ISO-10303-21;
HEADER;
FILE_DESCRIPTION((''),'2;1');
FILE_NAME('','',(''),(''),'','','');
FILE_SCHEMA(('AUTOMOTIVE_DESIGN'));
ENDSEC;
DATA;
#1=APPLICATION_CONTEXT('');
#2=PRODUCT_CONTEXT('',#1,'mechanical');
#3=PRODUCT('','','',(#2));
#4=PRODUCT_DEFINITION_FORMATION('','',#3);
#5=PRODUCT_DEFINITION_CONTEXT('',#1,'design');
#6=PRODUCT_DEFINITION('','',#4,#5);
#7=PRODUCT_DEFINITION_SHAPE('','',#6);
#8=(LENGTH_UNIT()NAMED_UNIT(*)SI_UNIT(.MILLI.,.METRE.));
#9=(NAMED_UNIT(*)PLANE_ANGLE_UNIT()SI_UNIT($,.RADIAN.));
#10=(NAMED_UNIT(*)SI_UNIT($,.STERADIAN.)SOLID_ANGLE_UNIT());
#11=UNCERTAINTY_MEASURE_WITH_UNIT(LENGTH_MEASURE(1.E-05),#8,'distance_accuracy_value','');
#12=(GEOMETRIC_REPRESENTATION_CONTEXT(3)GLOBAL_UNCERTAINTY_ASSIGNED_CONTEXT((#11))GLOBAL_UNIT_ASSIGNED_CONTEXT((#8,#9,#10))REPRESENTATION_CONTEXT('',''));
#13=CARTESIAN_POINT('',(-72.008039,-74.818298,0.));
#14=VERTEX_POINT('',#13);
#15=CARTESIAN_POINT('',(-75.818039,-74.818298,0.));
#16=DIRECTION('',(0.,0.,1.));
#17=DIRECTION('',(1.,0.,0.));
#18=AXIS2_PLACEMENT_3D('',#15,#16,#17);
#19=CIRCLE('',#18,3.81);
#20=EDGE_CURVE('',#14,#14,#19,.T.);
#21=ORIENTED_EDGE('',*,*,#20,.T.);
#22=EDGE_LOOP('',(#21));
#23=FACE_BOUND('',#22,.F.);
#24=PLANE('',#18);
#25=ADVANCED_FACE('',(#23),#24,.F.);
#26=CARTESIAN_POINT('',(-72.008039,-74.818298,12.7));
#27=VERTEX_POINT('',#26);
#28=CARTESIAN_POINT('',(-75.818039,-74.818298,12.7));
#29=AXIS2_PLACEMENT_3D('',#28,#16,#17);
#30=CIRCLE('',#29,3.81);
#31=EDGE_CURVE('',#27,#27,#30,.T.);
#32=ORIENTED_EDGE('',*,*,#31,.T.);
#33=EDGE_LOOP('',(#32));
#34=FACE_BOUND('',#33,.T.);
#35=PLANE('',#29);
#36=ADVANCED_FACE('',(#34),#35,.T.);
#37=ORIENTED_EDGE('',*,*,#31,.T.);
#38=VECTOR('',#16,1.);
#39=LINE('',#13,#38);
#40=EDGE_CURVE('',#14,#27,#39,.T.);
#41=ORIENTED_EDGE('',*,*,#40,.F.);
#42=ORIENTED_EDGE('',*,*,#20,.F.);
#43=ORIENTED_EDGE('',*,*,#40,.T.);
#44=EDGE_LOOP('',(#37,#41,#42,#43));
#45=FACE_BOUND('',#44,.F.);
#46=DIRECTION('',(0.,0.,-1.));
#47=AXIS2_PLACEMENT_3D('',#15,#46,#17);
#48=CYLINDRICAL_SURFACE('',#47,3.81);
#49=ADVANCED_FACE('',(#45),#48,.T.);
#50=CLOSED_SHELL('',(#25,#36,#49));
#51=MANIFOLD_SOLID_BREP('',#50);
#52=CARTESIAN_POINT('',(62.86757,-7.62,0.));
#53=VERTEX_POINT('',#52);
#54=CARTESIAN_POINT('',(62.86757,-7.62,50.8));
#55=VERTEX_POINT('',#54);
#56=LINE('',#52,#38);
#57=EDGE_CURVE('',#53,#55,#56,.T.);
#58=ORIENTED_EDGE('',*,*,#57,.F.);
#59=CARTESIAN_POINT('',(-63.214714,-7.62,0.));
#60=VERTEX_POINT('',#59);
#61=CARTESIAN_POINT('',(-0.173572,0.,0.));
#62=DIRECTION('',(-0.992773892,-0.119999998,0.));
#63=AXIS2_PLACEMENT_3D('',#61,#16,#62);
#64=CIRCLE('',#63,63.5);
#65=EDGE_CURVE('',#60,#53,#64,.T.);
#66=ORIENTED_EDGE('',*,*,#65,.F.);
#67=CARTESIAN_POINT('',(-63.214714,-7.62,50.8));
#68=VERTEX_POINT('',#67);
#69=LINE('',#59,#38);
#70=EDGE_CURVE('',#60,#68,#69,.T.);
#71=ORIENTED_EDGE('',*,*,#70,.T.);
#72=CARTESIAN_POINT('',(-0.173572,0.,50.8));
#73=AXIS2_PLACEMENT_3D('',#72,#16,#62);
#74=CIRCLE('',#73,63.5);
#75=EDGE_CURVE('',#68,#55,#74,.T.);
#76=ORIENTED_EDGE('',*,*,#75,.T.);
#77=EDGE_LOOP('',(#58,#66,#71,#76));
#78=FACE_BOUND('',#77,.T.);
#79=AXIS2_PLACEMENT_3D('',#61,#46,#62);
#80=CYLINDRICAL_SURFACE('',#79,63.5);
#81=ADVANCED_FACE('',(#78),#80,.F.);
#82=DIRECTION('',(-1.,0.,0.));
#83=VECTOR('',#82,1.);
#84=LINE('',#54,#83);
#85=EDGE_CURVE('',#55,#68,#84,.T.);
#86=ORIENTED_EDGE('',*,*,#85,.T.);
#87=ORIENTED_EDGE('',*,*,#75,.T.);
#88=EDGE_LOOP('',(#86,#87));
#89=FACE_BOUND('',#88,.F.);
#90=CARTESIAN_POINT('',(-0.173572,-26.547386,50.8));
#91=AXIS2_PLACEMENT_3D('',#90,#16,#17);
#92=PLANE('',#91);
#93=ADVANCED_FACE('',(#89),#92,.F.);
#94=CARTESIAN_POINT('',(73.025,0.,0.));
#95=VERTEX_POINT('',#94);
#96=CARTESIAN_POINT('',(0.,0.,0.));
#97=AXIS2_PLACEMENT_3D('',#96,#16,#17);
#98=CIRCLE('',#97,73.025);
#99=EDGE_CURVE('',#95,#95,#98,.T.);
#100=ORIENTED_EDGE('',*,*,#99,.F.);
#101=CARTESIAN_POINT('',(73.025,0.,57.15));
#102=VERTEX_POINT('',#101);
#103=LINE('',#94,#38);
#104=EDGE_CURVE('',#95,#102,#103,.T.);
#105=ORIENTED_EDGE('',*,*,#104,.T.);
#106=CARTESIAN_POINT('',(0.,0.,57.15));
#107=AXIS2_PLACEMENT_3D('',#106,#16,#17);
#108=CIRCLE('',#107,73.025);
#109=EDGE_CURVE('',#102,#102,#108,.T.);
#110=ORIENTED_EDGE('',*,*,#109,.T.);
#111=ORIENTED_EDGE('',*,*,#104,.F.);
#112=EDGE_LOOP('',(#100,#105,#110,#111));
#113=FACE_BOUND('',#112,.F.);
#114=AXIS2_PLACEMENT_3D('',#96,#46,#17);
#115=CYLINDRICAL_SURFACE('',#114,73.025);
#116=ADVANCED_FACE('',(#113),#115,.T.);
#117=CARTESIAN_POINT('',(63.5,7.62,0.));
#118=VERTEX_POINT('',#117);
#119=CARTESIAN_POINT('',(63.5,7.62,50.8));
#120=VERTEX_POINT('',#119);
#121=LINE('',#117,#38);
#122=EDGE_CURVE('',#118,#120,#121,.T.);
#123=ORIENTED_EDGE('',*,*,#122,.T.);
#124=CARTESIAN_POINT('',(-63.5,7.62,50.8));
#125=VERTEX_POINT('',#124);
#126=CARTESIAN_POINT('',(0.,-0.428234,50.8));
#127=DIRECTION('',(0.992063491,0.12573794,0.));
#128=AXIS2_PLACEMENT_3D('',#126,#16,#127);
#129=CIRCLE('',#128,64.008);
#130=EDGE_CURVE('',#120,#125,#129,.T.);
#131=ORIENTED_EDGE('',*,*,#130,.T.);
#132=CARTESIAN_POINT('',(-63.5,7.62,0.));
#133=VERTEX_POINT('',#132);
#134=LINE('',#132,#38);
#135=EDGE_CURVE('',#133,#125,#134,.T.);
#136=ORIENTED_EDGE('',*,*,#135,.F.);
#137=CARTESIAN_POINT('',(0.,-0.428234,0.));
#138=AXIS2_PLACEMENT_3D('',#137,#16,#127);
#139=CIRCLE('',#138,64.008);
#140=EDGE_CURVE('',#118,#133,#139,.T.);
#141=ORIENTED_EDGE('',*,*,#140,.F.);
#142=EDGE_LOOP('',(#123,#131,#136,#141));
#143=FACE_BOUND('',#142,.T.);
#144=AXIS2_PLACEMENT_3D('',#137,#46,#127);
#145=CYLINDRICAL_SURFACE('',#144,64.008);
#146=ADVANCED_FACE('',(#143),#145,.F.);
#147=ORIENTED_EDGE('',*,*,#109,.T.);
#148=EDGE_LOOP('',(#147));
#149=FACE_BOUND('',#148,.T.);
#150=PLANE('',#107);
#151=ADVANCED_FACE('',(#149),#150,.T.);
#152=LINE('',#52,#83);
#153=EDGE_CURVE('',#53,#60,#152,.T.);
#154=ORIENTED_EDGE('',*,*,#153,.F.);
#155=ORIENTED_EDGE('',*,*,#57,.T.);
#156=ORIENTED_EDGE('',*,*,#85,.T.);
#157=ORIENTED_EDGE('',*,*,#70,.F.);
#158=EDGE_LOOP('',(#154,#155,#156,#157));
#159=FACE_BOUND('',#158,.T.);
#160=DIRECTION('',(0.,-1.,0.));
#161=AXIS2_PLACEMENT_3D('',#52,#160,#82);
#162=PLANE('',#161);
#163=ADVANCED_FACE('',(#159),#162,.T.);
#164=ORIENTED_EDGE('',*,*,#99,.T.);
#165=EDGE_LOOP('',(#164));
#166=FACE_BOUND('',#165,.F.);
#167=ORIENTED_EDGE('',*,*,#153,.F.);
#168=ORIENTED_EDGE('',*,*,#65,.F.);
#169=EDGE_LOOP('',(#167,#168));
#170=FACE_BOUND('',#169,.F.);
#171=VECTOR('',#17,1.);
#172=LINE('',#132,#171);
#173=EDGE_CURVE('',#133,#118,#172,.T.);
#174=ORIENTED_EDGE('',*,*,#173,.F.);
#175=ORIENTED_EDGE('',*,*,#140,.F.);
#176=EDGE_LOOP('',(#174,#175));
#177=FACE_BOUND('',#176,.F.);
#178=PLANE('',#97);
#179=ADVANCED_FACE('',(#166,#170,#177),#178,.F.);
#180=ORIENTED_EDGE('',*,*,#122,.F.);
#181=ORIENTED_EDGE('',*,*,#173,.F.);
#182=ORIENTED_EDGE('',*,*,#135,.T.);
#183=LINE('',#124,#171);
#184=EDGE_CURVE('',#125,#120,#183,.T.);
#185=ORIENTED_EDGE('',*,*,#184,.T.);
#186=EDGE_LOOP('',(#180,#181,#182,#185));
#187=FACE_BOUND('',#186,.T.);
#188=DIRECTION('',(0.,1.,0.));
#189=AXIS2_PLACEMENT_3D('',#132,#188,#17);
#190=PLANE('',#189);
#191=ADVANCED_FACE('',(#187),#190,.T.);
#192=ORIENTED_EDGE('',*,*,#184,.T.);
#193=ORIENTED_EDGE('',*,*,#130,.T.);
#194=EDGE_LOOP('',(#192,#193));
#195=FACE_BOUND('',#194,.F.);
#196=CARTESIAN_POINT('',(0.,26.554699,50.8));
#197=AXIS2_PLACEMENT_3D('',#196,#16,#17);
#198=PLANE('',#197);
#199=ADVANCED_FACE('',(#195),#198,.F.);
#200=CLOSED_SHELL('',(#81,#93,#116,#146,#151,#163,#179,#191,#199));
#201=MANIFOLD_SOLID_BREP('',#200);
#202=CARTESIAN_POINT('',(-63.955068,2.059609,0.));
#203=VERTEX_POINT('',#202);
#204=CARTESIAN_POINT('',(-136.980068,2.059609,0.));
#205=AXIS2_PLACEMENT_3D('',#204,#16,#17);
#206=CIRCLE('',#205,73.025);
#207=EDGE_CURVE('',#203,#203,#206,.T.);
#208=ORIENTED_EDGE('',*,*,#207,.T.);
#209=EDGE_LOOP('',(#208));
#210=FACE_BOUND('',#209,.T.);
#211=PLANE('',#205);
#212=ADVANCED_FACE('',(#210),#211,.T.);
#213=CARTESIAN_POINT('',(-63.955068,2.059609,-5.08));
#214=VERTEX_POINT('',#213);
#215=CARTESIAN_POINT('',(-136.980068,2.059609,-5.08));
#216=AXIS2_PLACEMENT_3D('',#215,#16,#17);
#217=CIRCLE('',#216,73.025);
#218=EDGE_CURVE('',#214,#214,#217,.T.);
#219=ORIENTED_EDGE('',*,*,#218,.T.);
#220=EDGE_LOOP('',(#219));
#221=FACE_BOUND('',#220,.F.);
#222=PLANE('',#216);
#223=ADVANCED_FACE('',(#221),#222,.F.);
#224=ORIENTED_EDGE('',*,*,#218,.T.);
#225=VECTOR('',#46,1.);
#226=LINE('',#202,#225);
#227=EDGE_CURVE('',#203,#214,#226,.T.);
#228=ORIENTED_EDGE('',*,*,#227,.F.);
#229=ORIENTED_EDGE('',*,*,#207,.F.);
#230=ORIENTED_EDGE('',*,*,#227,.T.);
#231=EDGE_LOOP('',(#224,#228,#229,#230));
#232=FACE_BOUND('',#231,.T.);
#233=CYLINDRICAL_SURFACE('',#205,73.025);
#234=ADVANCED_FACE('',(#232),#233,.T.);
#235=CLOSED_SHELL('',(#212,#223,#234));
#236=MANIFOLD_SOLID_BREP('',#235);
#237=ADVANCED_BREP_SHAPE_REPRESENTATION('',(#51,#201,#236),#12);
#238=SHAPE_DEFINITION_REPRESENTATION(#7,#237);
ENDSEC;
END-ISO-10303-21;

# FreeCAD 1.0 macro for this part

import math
import FreeCAD as App
import Part
import Sketcher

V = App.Vector
Q = App.Units.Quantity

doc = App.newDocument("Part")
body = doc.addObject("PartDesign::Body", "Body")

sketch1 = doc.addObject("Sketcher::SketchObject", "Sketch")
body.addObject(sketch1)
sketch1.AttachmentSupport = (doc.XY_Plane, [""])
sketch1.MapMode = "FlatFace"
sketch1.addGeometry(Part.Circle(V(0, 0, 0), V(0, 0, 1), 73), False)
sketch1.addConstraint(Sketcher.Constraint("Coincident", 0, 3, -1, 1))
sketch1.addConstraint(Sketcher.Constraint("Diameter", 0, Q("5.75 in")))
pad1 = doc.addObject("PartDesign::Pad", "Pad")
body.addObject(pad1)
pad1.Profile = sketch1
pad1.Length = Q("2.25 in")

sketch2 = doc.addObject("Sketcher::SketchObject", "Sketch001")
body.addObject(sketch2)
sketch2.AttachmentSupport = (doc.XY_Plane, [""])
sketch2.MapMode = "FlatFace"
sketch2.addGeometry(Part.ArcOfCircle(Part.Circle(V(0, 0, 0), V(0, 0, 1), 63), math.radians(-173), math.radians(-7)), False)
sketch2.addGeometry(Part.LineSegment(V(63, -8, 0), V(-63, -8, 0)), False)
sketch2.addConstraint(Sketcher.Constraint("Coincident", 0, 1, 1, 2))
sketch2.addConstraint(Sketcher.Constraint("Coincident", 1, 1, 0, 2))
sketch2.addConstraint(Sketcher.Constraint("Horizontal", 1))
sketch2.addConstraint(Sketcher.Constraint("PointOnObject", 0, 3, -1))
sketch2.addConstraint(Sketcher.Constraint("Radius", 0, Q("2.5 in")))
sketch2.addConstraint(Sketcher.Constraint("DistanceY", 0, 1, -1, 1, Q("0.3 in")))
sketch2.addConstraint(Sketcher.Constraint("DistanceX", -1, 1, 1, 1, Q("62.86757 mm")))
pocket1 = doc.addObject("PartDesign::Pocket", "Pocket")
body.addObject(pocket1)
pocket1.Profile = sketch2
pocket1.Length = Q("2 in")
pocket1.Reversed = True

sketch3 = doc.addObject("Sketcher::SketchObject", "Sketch002")
body.addObject(sketch3)
sketch3.AttachmentSupport = (doc.XY_Plane, [""])
sketch3.MapMode = "FlatFace"
sketch3.addGeometry(Part.LineSegment(V(-64, 8, 0), V(64, 8, 0)), False)
sketch3.addGeometry(Part.ArcOfCircle(Part.Circle(V(0, 0, 0), V(0, 0, 1), 64), math.radians(7), math.radians(173)), False)
sketch3.addConstraint(Sketcher.Constraint("Coincident", 0, 1, 1, 2))
sketch3.addConstraint(Sketcher.Constraint("Coincident", 1, 1, 0, 2))
sketch3.addConstraint(Sketcher.Constraint("Horizontal", 0))
sketch3.addConstraint(Sketcher.Constraint("PointOnObject", 1, 3, -2))
sketch3.addConstraint(Sketcher.Constraint("DistanceX", 0, 1, 0, 2, Q("5 in")))
sketch3.addConstraint(Sketcher.Constraint("Radius", 1, Q("2.52 in")))
sketch3.addConstraint(Sketcher.Constraint("DistanceY", -1, 1, 0, 1, Q("0.3 in")))
pocket2 = doc.addObject("PartDesign::Pocket", "Pocket001")
body.addObject(pocket2)
pocket2.Profile = sketch3
pocket2.Length = Q("2 in")
pocket2.Reversed = True
body2 = doc.addObject("PartDesign::Body", "Body001")

sketch4 = doc.addObject("Sketcher::SketchObject", "Sketch003")
body2.addObject(sketch4)
sketch4.AttachmentSupport = (doc.getObject("XY_Plane001"), [""])
sketch4.MapMode = "FlatFace"
sketch4.addGeometry(Part.Circle(V(-137, 2, 0), V(0, 0, 1), 73), False)
sketch4.addConstraint(Sketcher.Constraint("Diameter", 0, Q("5.75 in")))
sketch4.addConstraint(Sketcher.Constraint("DistanceY", -1, 1, 0, 3, Q("2.059609 mm")))
sketch4.addConstraint(Sketcher.Constraint("DistanceX", 0, 3, -1, 1, Q("136.980068 mm")))
pad2 = doc.addObject("PartDesign::Pad", "Pad001")
body2.addObject(pad2)
pad2.Profile = sketch4
pad2.Length = Q("0.2 in")
pad2.Reversed = True
body3 = doc.addObject("PartDesign::Body", "Body002")

sketch5 = doc.addObject("Sketcher::SketchObject", "Sketch004")
body3.addObject(sketch5)
sketch5.AttachmentSupport = (doc.getObject("XY_Plane002"), [""])
sketch5.MapMode = "FlatFace"
sketch5.addGeometry(Part.Circle(V(-75.8, -74.8, 0), V(0, 0, 1), 3.8), False)
sketch5.addConstraint(Sketcher.Constraint("Diameter", 0, Q("0.3 in")))
sketch5.addConstraint(Sketcher.Constraint("DistanceY", 0, 3, -1, 1, Q("74.818298 mm")))
sketch5.addConstraint(Sketcher.Constraint("DistanceX", 0, 3, -1, 1, Q("75.818039 mm")))
pad3 = doc.addObject("PartDesign::Pad", "Pad002")
body3.addObject(pad3)
pad3.Profile = sketch5
pad3.Length = Q("0.5 in")

doc.recompute()
